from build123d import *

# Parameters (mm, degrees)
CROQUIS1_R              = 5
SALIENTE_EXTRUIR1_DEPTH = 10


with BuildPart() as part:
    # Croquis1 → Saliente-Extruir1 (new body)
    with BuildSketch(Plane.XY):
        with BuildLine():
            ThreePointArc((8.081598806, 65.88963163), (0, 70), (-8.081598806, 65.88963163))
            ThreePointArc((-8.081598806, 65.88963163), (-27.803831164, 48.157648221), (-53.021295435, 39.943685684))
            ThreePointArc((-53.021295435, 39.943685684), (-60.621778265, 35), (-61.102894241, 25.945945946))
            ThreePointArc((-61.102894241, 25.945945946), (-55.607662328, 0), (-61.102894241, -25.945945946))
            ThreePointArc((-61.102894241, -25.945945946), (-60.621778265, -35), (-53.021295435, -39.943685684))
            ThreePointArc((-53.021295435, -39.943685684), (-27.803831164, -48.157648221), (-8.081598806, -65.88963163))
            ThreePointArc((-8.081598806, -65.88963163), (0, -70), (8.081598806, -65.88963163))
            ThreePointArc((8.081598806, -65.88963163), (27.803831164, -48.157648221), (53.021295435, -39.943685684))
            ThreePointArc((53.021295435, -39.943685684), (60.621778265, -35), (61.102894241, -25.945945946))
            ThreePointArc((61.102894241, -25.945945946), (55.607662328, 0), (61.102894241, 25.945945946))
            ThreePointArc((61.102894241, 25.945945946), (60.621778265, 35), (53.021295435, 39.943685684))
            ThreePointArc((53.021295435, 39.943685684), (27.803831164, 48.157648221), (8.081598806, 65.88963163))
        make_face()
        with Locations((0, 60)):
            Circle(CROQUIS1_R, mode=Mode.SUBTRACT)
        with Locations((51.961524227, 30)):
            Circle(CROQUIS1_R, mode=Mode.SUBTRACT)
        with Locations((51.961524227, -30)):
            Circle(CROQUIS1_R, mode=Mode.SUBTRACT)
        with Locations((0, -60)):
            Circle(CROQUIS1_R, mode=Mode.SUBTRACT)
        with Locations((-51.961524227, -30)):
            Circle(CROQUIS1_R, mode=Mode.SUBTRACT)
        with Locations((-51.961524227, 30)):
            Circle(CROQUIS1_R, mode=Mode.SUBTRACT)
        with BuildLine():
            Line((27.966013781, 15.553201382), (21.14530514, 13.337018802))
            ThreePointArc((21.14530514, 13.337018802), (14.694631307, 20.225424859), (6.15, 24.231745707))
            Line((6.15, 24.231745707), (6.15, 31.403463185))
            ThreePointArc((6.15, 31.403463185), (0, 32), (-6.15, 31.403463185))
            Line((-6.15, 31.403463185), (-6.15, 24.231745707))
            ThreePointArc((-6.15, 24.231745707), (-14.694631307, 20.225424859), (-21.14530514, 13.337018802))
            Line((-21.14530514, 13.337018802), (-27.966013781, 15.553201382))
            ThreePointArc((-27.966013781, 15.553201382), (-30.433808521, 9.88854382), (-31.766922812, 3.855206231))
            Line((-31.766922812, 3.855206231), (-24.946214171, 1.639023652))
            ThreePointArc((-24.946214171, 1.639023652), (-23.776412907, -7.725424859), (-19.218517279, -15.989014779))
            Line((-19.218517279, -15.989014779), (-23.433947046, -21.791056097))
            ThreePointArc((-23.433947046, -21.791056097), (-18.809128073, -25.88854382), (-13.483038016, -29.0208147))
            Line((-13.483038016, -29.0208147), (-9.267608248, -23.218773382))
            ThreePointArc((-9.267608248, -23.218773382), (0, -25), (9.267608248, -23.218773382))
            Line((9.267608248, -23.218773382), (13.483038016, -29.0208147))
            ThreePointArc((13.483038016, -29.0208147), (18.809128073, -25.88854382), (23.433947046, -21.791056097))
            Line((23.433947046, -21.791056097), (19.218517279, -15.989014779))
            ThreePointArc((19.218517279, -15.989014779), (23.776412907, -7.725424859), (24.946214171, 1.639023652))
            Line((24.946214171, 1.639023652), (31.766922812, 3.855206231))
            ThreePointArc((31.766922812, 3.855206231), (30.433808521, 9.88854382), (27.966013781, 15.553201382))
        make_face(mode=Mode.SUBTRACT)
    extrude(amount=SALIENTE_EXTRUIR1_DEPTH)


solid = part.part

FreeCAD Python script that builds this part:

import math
import FreeCAD as App
import Part
import Sketcher
Q = App.Units.Quantity

doc = App.newDocument("Part")
body = doc.addObject("PartDesign::Body", "Body")

sketch1 = body.newObject("Sketcher::SketchObject", "Sketch")
sketch1.AttachmentSupport = (doc.getObject("XY_Plane"), [""])
sketch1.MapMode = "FlatFace"
sketch1.addGeometry(Part.ArcOfCircle(Part.Circle(App.Vector(0, 60, 0), App.Vector(0, 0, 1), 10), math.radians(36), math.radians(144)), False)
sketch1.addGeometry(Part.ArcOfCircle(Part.Circle(App.Vector(-60, 104, 0), App.Vector(0, 0, 1), 64), math.radians(-84), math.radians(-36)), False)
sketch1.addGeometry(Part.ArcOfCircle(Part.Circle(App.Vector(-52, 30, 0), App.Vector(0, 0, 1), 10), math.radians(96), math.radians(204)), False)
sketch1.addGeometry(Part.ArcOfCircle(Part.Circle(App.Vector(-120, 0, 0), App.Vector(0, 0, 1), 64), math.radians(-24), math.radians(24)), False)
sketch1.addGeometry(Part.ArcOfCircle(Part.Circle(App.Vector(-52, -30, 0), App.Vector(0, 0, 1), 10), math.radians(156), math.radians(264)), False)
sketch1.addGeometry(Part.ArcOfCircle(Part.Circle(App.Vector(-60, -104, 0), App.Vector(0, 0, 1), 64), math.radians(36), math.radians(84)), False)
sketch1.addGeometry(Part.ArcOfCircle(Part.Circle(App.Vector(0, -60, 0), App.Vector(0, 0, 1), 10), math.radians(-144), math.radians(-36)), False)
sketch1.addGeometry(Part.ArcOfCircle(Part.Circle(App.Vector(60, -104, 0), App.Vector(0, 0, 1), 64), math.radians(96), math.radians(144)), False)
sketch1.addGeometry(Part.ArcOfCircle(Part.Circle(App.Vector(52, -30, 0), App.Vector(0, 0, 1), 10), math.radians(-84), math.radians(24)), False)
sketch1.addGeometry(Part.ArcOfCircle(Part.Circle(App.Vector(120, 0, 0), App.Vector(0, 0, 1), 64), math.radians(156), math.radians(204)), False)
sketch1.addGeometry(Part.ArcOfCircle(Part.Circle(App.Vector(52, 30, 0), App.Vector(0, 0, 1), 10), math.radians(-24), math.radians(84)), False)
sketch1.addGeometry(Part.ArcOfCircle(Part.Circle(App.Vector(60, 104, 0), App.Vector(0, 0, 1), 64), math.radians(-144), math.radians(-96)), False)
sketch1.addGeometry(Part.Circle(App.Vector(-52, -30, 0), App.Vector(0, 0, 1), 5), False)
sketch1.addGeometry(Part.Circle(App.Vector(0, -60, 0), App.Vector(0, 0, 1), 5), False)
sketch1.addGeometry(Part.Circle(App.Vector(52, -30, 0), App.Vector(0, 0, 1), 5), False)
sketch1.addGeometry(Part.Circle(App.Vector(-52, 30, 0), App.Vector(0, 0, 1), 5), False)
sketch1.addGeometry(Part.LineSegment(App.Vector(21, 13, 0), App.Vector(28, 16, 0)), False)
sketch1.addGeometry(Part.ArcOfCircle(Part.Circle(App.Vector(0, 0, 0), App.Vector(0, 0, 1), 32), math.radians(7), math.radians(29)), False)
sketch1.addGeometry(Part.LineSegment(App.Vector(32, 4, 0), App.Vector(25, 2, 0)), False)
sketch1.addGeometry(Part.ArcOfCircle(Part.Circle(App.Vector(0, 0, 0), App.Vector(0, 0, 1), 25), math.radians(-40), math.radians(4)), False)
sketch1.addGeometry(Part.LineSegment(App.Vector(19, -16, 0), App.Vector(23, -22, 0)), False)
sketch1.addGeometry(Part.ArcOfCircle(Part.Circle(App.Vector(0, 0, 0), App.Vector(0, 0, 1), 32), math.radians(-65), math.radians(-43)), False)
sketch1.addGeometry(Part.LineSegment(App.Vector(13, -29, 0), App.Vector(9, -23, 0)), False)
sketch1.addGeometry(Part.ArcOfCircle(Part.Circle(App.Vector(0, 0, 0), App.Vector(0, 0, 1), 25), math.radians(-112), math.radians(-68)), False)
sketch1.addGeometry(Part.LineSegment(App.Vector(-9, -23, 0), App.Vector(-13, -29, 0)), False)
sketch1.addGeometry(Part.ArcOfCircle(Part.Circle(App.Vector(0, 0, 0), App.Vector(0, 0, 1), 32), math.radians(-137), math.radians(-115)), False)
sketch1.addGeometry(Part.LineSegment(App.Vector(-23, -22, 0), App.Vector(-19, -16, 0)), False)
sketch1.addGeometry(Part.ArcOfCircle(Part.Circle(App.Vector(0, 0, 0), App.Vector(0, 0, 1), 25), math.radians(176), math.radians(220)), False)
sketch1.addGeometry(Part.LineSegment(App.Vector(-25, 2, 0), App.Vector(-32, 4, 0)), False)
sketch1.addGeometry(Part.ArcOfCircle(Part.Circle(App.Vector(0, 0, 0), App.Vector(0, 0, 1), 32), math.radians(151), math.radians(173)), False)
sketch1.addGeometry(Part.LineSegment(App.Vector(-28, 16, 0), App.Vector(-21, 13, 0)), False)
sketch1.addGeometry(Part.ArcOfCircle(Part.Circle(App.Vector(0, 0, 0), App.Vector(0, 0, 1), 25), math.radians(104), math.radians(148)), False)
sketch1.addGeometry(Part.LineSegment(App.Vector(-6, 24, 0), App.Vector(-6, 31, 0)), False)
sketch1.addGeometry(Part.ArcOfCircle(Part.Circle(App.Vector(0, 0, 0), App.Vector(0, 0, 1), 32), math.radians(79), math.radians(101)), False)
sketch1.addGeometry(Part.LineSegment(App.Vector(6, 31, 0), App.Vector(6, 24, 0)), False)
sketch1.addGeometry(Part.ArcOfCircle(Part.Circle(App.Vector(0, 0, 0), App.Vector(0, 0, 1), 25), math.radians(32), math.radians(76)), False)
sketch1.addGeometry(Part.Circle(App.Vector(52, 30, 0), App.Vector(0, 0, 1), 5), False)
sketch1.addGeometry(Part.Circle(App.Vector(0, 60, 0), App.Vector(0, 0, 1), 5), False)
sketch1.addConstraint(Sketcher.Constraint("Tangent", 0, 2, 1, 2))
sketch1.addConstraint(Sketcher.Constraint("Tangent", 1, 1, 2, 1))
sketch1.addConstraint(Sketcher.Constraint("Tangent", 2, 2, 3, 2))
sketch1.addConstraint(Sketcher.Constraint("Tangent", 3, 1, 4, 1))
sketch1.addConstraint(Sketcher.Constraint("Tangent", 4, 2, 5, 2))
sketch1.addConstraint(Sketcher.Constraint("Tangent", 5, 1, 6, 1))
sketch1.addConstraint(Sketcher.Constraint("Tangent", 6, 2, 7, 2))
sketch1.addConstraint(Sketcher.Constraint("Tangent", 7, 1, 8, 1))
sketch1.addConstraint(Sketcher.Constraint("Tangent", 8, 2, 9, 2))
sketch1.addConstraint(Sketcher.Constraint("Tangent", 9, 1, 10, 1))
sketch1.addConstraint(Sketcher.Constraint("Tangent", 10, 2, 11, 2))
sketch1.addConstraint(Sketcher.Constraint("Tangent", 11, 1, 0, 1))
sketch1.addConstraint(Sketcher.Constraint("Coincident", 16, 2, 17, 2))
sketch1.addConstraint(Sketcher.Constraint("Coincident", 17, 1, 18, 1))
sketch1.addConstraint(Sketcher.Constraint("Coincident", 18, 2, 19, 2))
sketch1.addConstraint(Sketcher.Constraint("Coincident", 19, 1, 20, 1))
sketch1.addConstraint(Sketcher.Constraint("Coincident", 20, 2, 21, 2))
sketch1.addConstraint(Sketcher.Constraint("Coincident", 21, 1, 22, 1))
sketch1.addConstraint(Sketcher.Constraint("Coincident", 22, 2, 23, 2))
sketch1.addConstraint(Sketcher.Constraint("Coincident", 23, 1, 24, 1))
sketch1.addConstraint(Sketcher.Constraint("Coincident", 24, 2, 25, 2))
sketch1.addConstraint(Sketcher.Constraint("Coincident", 25, 1, 26, 1))
sketch1.addConstraint(Sketcher.Constraint("Coincident", 26, 2, 27, 2))
sketch1.addConstraint(Sketcher.Constraint("Coincident", 27, 1, 28, 1))
sketch1.addConstraint(Sketcher.Constraint("Coincident", 28, 2, 29, 2))
sketch1.addConstraint(Sketcher.Constraint("Coincident", 29, 1, 30, 1))
sketch1.addConstraint(Sketcher.Constraint("Coincident", 30, 2, 31, 2))
sketch1.addConstraint(Sketcher.Constraint("Coincident", 31, 1, 32, 1))
sketch1.addConstraint(Sketcher.Constraint("Coincident", 32, 2, 33, 2))
sketch1.addConstraint(Sketcher.Constraint("Coincident", 33, 1, 34, 1))
sketch1.addConstraint(Sketcher.Constraint("Coincident", 34, 2, 35, 2))
sketch1.addConstraint(Sketcher.Constraint("Coincident", 35, 1, 16, 1))
sketch1.addConstraint(Sketcher.Constraint("Vertical", 32))
sketch1.addConstraint(Sketcher.Constraint("Vertical", 34))
sketch1.addConstraint(Sketcher.Constraint("Coincident", 17, 3, -1, 1))
sketch1.addConstraint(Sketcher.Constraint("Coincident", 19, 3, -1, 1))
sketch1.addConstraint(Sketcher.Constraint("Coincident", 21, 3, -1, 1))
sketch1.addConstraint(Sketcher.Constraint("Coincident", 23, 3, -1, 1))
sketch1.addConstraint(Sketcher.Constraint("Coincident", 25, 3, -1, 1))
sketch1.addConstraint(Sketcher.Constraint("Coincident", 27, 3, -1, 1))
sketch1.addConstraint(Sketcher.Constraint("Coincident", 29, 3, -1, 1))
sketch1.addConstraint(Sketcher.Constraint("Coincident", 31, 3, -1, 1))
sketch1.addConstraint(Sketcher.Constraint("Coincident", 33, 3, -1, 1))
sketch1.addConstraint(Sketcher.Constraint("Coincident", 35, 3, -1, 1))
sketch1.addConstraint(Sketcher.Constraint("Coincident", 12, 3, 4, 3))
sketch1.addConstraint(Sketcher.Constraint("Coincident", 13, 3, 6, 3))
sketch1.addConstraint(Sketcher.Constraint("Coincident", 14, 3, 8, 3))
sketch1.addConstraint(Sketcher.Constraint("Coincident", 15, 3, 2, 3))
sketch1.addConstraint(Sketcher.Constraint("Coincident", 36, 3, 10, 3))
sketch1.addConstraint(Sketcher.Constraint("Coincident", 37, 3, 0, 3))
sketch1.addConstraint(Sketcher.Constraint("Equal", 0, 2))
sketch1.addConstraint(Sketcher.Constraint("Equal", 1, 3))
sketch1.addConstraint(Sketcher.Constraint("Equal", 2, 4))
sketch1.addConstraint(Sketcher.Constraint("Equal", 3, 5))
sketch1.addConstraint(Sketcher.Constraint("Equal", 4, 6))
sketch1.addConstraint(Sketcher.Constraint("Equal", 5, 7))
sketch1.addConstraint(Sketcher.Constraint("Equal", 6, 8))
sketch1.addConstraint(Sketcher.Constraint("Equal", 7, 9))
sketch1.addConstraint(Sketcher.Constraint("Equal", 8, 10))
sketch1.addConstraint(Sketcher.Constraint("Equal", 9, 11))
sketch1.addConstraint(Sketcher.Constraint("Equal", 12, 13))
sketch1.addConstraint(Sketcher.Constraint("Equal", 13, 14))
sketch1.addConstraint(Sketcher.Constraint("Equal", 14, 15))
sketch1.addConstraint(Sketcher.Constraint("Equal", 17, 21))
sketch1.addConstraint(Sketcher.Constraint("Equal", 19, 23))
sketch1.addConstraint(Sketcher.Constraint("Equal", 21, 25))
sketch1.addConstraint(Sketcher.Constraint("Equal", 23, 27))
sketch1.addConstraint(Sketcher.Constraint("Equal", 25, 29))
sketch1.addConstraint(Sketcher.Constraint("Equal", 27, 31))
sketch1.addConstraint(Sketcher.Constraint("Equal", 29, 33))
sketch1.addConstraint(Sketcher.Constraint("Equal", 31, 35))
sketch1.addConstraint(Sketcher.Constraint("Equal", 15, 36))
sketch1.addConstraint(Sketcher.Constraint("Equal", 36, 37))
sketch1.addConstraint(Sketcher.Constraint("Symmetric", 0, 3, 6, 3, -1, 1))
sketch1.addConstraint(Sketcher.Constraint("Symmetric", 2, 3, 8, 3, -1, 1))
sketch1.addConstraint(Sketcher.Constraint("Symmetric", 4, 3, 10, 3, -1, 1))
sketch1.addConstraint(Sketcher.Constraint("Symmetric", 5, 3, 7, 3, -2))
sketch1.addConstraint(Sketcher.Constraint("PointOnObject", 3, 3, -1))
sketch1.addConstraint(Sketcher.Constraint("Parallel", 16, 18))
sketch1.addConstraint(Sketcher.Constraint("Parallel", 20, 22))
sketch1.addConstraint(Sketcher.Constraint("Parallel", 24, 26))
sketch1.addConstraint(Sketcher.Constraint("Parallel", 28, 30))
sketch1.addConstraint(Sketcher.Constraint("Horizontal", 22, 2, 23, 1))
sketch1.addConstraint(Sketcher.Constraint("Horizontal", 21, 1, 24, 2))
sketch1.addConstraint(Sketcher.Constraint("Horizontal", 20, 2, 25, 1))
sketch1.addConstraint(Sketcher.Constraint("Horizontal", 18, 2, 27, 1))
sketch1.addConstraint(Sketcher.Constraint("Horizontal", 17, 1, 28, 2))
sketch1.addConstraint(Sketcher.Constraint("Horizontal", 16, 2, 29, 1))
sketch1.addConstraint(Sketcher.Constraint("Horizontal", 32, 2, 33, 1))
sketch1.addConstraint(Sketcher.Constraint("Equal", 16, 18))
sketch1.addConstraint(Sketcher.Constraint("Equal", 18, 20))
sketch1.addConstraint(Sketcher.Constraint("Equal", 20, 22))
sketch1.addConstraint(Sketcher.Constraint("Diameter", 12, Q("10 mm")))
sketch1.addConstraint(Sketcher.Constraint("Radius", 0, Q("10 mm")))
sketch1.addConstraint(Sketcher.Constraint("Radius", 1, Q("64 mm")))
sketch1.addConstraint(Sketcher.Constraint("Radius", 17, Q("32 mm")))
sketch1.addConstraint(Sketcher.Constraint("Radius", 19, Q("25 mm")))
sketch1.addConstraint(Sketcher.Constraint("Angle", 16, Q("18 deg")))
sketch1.addConstraint(Sketcher.Constraint("Angle", 20, Q("-54 deg")))
sketch1.addConstraint(Sketcher.Constraint("DistanceY", -1, 1, 0, 3, Q("60 mm")))
sketch1.addConstraint(Sketcher.Constraint("DistanceY", -1, 1, 2, 3, Q("30 mm")))
sketch1.addConstraint(Sketcher.Constraint("DistanceX", 32, 2, 33, 1, Q("12.3 mm")))
sketch1.addConstraint(Sketcher.Constraint("DistanceY", -1, 1, 16, 2, Q("15.553201 mm")))
sketch1.addConstraint(Sketcher.Constraint("DistanceX", 1, 3, -1, 1, Q("59.803831 mm")))
pad1 = body.newObject("PartDesign::Pad", "Pad")
pad1.Profile = sketch1
pad1.Length = 10

doc.recompute()
